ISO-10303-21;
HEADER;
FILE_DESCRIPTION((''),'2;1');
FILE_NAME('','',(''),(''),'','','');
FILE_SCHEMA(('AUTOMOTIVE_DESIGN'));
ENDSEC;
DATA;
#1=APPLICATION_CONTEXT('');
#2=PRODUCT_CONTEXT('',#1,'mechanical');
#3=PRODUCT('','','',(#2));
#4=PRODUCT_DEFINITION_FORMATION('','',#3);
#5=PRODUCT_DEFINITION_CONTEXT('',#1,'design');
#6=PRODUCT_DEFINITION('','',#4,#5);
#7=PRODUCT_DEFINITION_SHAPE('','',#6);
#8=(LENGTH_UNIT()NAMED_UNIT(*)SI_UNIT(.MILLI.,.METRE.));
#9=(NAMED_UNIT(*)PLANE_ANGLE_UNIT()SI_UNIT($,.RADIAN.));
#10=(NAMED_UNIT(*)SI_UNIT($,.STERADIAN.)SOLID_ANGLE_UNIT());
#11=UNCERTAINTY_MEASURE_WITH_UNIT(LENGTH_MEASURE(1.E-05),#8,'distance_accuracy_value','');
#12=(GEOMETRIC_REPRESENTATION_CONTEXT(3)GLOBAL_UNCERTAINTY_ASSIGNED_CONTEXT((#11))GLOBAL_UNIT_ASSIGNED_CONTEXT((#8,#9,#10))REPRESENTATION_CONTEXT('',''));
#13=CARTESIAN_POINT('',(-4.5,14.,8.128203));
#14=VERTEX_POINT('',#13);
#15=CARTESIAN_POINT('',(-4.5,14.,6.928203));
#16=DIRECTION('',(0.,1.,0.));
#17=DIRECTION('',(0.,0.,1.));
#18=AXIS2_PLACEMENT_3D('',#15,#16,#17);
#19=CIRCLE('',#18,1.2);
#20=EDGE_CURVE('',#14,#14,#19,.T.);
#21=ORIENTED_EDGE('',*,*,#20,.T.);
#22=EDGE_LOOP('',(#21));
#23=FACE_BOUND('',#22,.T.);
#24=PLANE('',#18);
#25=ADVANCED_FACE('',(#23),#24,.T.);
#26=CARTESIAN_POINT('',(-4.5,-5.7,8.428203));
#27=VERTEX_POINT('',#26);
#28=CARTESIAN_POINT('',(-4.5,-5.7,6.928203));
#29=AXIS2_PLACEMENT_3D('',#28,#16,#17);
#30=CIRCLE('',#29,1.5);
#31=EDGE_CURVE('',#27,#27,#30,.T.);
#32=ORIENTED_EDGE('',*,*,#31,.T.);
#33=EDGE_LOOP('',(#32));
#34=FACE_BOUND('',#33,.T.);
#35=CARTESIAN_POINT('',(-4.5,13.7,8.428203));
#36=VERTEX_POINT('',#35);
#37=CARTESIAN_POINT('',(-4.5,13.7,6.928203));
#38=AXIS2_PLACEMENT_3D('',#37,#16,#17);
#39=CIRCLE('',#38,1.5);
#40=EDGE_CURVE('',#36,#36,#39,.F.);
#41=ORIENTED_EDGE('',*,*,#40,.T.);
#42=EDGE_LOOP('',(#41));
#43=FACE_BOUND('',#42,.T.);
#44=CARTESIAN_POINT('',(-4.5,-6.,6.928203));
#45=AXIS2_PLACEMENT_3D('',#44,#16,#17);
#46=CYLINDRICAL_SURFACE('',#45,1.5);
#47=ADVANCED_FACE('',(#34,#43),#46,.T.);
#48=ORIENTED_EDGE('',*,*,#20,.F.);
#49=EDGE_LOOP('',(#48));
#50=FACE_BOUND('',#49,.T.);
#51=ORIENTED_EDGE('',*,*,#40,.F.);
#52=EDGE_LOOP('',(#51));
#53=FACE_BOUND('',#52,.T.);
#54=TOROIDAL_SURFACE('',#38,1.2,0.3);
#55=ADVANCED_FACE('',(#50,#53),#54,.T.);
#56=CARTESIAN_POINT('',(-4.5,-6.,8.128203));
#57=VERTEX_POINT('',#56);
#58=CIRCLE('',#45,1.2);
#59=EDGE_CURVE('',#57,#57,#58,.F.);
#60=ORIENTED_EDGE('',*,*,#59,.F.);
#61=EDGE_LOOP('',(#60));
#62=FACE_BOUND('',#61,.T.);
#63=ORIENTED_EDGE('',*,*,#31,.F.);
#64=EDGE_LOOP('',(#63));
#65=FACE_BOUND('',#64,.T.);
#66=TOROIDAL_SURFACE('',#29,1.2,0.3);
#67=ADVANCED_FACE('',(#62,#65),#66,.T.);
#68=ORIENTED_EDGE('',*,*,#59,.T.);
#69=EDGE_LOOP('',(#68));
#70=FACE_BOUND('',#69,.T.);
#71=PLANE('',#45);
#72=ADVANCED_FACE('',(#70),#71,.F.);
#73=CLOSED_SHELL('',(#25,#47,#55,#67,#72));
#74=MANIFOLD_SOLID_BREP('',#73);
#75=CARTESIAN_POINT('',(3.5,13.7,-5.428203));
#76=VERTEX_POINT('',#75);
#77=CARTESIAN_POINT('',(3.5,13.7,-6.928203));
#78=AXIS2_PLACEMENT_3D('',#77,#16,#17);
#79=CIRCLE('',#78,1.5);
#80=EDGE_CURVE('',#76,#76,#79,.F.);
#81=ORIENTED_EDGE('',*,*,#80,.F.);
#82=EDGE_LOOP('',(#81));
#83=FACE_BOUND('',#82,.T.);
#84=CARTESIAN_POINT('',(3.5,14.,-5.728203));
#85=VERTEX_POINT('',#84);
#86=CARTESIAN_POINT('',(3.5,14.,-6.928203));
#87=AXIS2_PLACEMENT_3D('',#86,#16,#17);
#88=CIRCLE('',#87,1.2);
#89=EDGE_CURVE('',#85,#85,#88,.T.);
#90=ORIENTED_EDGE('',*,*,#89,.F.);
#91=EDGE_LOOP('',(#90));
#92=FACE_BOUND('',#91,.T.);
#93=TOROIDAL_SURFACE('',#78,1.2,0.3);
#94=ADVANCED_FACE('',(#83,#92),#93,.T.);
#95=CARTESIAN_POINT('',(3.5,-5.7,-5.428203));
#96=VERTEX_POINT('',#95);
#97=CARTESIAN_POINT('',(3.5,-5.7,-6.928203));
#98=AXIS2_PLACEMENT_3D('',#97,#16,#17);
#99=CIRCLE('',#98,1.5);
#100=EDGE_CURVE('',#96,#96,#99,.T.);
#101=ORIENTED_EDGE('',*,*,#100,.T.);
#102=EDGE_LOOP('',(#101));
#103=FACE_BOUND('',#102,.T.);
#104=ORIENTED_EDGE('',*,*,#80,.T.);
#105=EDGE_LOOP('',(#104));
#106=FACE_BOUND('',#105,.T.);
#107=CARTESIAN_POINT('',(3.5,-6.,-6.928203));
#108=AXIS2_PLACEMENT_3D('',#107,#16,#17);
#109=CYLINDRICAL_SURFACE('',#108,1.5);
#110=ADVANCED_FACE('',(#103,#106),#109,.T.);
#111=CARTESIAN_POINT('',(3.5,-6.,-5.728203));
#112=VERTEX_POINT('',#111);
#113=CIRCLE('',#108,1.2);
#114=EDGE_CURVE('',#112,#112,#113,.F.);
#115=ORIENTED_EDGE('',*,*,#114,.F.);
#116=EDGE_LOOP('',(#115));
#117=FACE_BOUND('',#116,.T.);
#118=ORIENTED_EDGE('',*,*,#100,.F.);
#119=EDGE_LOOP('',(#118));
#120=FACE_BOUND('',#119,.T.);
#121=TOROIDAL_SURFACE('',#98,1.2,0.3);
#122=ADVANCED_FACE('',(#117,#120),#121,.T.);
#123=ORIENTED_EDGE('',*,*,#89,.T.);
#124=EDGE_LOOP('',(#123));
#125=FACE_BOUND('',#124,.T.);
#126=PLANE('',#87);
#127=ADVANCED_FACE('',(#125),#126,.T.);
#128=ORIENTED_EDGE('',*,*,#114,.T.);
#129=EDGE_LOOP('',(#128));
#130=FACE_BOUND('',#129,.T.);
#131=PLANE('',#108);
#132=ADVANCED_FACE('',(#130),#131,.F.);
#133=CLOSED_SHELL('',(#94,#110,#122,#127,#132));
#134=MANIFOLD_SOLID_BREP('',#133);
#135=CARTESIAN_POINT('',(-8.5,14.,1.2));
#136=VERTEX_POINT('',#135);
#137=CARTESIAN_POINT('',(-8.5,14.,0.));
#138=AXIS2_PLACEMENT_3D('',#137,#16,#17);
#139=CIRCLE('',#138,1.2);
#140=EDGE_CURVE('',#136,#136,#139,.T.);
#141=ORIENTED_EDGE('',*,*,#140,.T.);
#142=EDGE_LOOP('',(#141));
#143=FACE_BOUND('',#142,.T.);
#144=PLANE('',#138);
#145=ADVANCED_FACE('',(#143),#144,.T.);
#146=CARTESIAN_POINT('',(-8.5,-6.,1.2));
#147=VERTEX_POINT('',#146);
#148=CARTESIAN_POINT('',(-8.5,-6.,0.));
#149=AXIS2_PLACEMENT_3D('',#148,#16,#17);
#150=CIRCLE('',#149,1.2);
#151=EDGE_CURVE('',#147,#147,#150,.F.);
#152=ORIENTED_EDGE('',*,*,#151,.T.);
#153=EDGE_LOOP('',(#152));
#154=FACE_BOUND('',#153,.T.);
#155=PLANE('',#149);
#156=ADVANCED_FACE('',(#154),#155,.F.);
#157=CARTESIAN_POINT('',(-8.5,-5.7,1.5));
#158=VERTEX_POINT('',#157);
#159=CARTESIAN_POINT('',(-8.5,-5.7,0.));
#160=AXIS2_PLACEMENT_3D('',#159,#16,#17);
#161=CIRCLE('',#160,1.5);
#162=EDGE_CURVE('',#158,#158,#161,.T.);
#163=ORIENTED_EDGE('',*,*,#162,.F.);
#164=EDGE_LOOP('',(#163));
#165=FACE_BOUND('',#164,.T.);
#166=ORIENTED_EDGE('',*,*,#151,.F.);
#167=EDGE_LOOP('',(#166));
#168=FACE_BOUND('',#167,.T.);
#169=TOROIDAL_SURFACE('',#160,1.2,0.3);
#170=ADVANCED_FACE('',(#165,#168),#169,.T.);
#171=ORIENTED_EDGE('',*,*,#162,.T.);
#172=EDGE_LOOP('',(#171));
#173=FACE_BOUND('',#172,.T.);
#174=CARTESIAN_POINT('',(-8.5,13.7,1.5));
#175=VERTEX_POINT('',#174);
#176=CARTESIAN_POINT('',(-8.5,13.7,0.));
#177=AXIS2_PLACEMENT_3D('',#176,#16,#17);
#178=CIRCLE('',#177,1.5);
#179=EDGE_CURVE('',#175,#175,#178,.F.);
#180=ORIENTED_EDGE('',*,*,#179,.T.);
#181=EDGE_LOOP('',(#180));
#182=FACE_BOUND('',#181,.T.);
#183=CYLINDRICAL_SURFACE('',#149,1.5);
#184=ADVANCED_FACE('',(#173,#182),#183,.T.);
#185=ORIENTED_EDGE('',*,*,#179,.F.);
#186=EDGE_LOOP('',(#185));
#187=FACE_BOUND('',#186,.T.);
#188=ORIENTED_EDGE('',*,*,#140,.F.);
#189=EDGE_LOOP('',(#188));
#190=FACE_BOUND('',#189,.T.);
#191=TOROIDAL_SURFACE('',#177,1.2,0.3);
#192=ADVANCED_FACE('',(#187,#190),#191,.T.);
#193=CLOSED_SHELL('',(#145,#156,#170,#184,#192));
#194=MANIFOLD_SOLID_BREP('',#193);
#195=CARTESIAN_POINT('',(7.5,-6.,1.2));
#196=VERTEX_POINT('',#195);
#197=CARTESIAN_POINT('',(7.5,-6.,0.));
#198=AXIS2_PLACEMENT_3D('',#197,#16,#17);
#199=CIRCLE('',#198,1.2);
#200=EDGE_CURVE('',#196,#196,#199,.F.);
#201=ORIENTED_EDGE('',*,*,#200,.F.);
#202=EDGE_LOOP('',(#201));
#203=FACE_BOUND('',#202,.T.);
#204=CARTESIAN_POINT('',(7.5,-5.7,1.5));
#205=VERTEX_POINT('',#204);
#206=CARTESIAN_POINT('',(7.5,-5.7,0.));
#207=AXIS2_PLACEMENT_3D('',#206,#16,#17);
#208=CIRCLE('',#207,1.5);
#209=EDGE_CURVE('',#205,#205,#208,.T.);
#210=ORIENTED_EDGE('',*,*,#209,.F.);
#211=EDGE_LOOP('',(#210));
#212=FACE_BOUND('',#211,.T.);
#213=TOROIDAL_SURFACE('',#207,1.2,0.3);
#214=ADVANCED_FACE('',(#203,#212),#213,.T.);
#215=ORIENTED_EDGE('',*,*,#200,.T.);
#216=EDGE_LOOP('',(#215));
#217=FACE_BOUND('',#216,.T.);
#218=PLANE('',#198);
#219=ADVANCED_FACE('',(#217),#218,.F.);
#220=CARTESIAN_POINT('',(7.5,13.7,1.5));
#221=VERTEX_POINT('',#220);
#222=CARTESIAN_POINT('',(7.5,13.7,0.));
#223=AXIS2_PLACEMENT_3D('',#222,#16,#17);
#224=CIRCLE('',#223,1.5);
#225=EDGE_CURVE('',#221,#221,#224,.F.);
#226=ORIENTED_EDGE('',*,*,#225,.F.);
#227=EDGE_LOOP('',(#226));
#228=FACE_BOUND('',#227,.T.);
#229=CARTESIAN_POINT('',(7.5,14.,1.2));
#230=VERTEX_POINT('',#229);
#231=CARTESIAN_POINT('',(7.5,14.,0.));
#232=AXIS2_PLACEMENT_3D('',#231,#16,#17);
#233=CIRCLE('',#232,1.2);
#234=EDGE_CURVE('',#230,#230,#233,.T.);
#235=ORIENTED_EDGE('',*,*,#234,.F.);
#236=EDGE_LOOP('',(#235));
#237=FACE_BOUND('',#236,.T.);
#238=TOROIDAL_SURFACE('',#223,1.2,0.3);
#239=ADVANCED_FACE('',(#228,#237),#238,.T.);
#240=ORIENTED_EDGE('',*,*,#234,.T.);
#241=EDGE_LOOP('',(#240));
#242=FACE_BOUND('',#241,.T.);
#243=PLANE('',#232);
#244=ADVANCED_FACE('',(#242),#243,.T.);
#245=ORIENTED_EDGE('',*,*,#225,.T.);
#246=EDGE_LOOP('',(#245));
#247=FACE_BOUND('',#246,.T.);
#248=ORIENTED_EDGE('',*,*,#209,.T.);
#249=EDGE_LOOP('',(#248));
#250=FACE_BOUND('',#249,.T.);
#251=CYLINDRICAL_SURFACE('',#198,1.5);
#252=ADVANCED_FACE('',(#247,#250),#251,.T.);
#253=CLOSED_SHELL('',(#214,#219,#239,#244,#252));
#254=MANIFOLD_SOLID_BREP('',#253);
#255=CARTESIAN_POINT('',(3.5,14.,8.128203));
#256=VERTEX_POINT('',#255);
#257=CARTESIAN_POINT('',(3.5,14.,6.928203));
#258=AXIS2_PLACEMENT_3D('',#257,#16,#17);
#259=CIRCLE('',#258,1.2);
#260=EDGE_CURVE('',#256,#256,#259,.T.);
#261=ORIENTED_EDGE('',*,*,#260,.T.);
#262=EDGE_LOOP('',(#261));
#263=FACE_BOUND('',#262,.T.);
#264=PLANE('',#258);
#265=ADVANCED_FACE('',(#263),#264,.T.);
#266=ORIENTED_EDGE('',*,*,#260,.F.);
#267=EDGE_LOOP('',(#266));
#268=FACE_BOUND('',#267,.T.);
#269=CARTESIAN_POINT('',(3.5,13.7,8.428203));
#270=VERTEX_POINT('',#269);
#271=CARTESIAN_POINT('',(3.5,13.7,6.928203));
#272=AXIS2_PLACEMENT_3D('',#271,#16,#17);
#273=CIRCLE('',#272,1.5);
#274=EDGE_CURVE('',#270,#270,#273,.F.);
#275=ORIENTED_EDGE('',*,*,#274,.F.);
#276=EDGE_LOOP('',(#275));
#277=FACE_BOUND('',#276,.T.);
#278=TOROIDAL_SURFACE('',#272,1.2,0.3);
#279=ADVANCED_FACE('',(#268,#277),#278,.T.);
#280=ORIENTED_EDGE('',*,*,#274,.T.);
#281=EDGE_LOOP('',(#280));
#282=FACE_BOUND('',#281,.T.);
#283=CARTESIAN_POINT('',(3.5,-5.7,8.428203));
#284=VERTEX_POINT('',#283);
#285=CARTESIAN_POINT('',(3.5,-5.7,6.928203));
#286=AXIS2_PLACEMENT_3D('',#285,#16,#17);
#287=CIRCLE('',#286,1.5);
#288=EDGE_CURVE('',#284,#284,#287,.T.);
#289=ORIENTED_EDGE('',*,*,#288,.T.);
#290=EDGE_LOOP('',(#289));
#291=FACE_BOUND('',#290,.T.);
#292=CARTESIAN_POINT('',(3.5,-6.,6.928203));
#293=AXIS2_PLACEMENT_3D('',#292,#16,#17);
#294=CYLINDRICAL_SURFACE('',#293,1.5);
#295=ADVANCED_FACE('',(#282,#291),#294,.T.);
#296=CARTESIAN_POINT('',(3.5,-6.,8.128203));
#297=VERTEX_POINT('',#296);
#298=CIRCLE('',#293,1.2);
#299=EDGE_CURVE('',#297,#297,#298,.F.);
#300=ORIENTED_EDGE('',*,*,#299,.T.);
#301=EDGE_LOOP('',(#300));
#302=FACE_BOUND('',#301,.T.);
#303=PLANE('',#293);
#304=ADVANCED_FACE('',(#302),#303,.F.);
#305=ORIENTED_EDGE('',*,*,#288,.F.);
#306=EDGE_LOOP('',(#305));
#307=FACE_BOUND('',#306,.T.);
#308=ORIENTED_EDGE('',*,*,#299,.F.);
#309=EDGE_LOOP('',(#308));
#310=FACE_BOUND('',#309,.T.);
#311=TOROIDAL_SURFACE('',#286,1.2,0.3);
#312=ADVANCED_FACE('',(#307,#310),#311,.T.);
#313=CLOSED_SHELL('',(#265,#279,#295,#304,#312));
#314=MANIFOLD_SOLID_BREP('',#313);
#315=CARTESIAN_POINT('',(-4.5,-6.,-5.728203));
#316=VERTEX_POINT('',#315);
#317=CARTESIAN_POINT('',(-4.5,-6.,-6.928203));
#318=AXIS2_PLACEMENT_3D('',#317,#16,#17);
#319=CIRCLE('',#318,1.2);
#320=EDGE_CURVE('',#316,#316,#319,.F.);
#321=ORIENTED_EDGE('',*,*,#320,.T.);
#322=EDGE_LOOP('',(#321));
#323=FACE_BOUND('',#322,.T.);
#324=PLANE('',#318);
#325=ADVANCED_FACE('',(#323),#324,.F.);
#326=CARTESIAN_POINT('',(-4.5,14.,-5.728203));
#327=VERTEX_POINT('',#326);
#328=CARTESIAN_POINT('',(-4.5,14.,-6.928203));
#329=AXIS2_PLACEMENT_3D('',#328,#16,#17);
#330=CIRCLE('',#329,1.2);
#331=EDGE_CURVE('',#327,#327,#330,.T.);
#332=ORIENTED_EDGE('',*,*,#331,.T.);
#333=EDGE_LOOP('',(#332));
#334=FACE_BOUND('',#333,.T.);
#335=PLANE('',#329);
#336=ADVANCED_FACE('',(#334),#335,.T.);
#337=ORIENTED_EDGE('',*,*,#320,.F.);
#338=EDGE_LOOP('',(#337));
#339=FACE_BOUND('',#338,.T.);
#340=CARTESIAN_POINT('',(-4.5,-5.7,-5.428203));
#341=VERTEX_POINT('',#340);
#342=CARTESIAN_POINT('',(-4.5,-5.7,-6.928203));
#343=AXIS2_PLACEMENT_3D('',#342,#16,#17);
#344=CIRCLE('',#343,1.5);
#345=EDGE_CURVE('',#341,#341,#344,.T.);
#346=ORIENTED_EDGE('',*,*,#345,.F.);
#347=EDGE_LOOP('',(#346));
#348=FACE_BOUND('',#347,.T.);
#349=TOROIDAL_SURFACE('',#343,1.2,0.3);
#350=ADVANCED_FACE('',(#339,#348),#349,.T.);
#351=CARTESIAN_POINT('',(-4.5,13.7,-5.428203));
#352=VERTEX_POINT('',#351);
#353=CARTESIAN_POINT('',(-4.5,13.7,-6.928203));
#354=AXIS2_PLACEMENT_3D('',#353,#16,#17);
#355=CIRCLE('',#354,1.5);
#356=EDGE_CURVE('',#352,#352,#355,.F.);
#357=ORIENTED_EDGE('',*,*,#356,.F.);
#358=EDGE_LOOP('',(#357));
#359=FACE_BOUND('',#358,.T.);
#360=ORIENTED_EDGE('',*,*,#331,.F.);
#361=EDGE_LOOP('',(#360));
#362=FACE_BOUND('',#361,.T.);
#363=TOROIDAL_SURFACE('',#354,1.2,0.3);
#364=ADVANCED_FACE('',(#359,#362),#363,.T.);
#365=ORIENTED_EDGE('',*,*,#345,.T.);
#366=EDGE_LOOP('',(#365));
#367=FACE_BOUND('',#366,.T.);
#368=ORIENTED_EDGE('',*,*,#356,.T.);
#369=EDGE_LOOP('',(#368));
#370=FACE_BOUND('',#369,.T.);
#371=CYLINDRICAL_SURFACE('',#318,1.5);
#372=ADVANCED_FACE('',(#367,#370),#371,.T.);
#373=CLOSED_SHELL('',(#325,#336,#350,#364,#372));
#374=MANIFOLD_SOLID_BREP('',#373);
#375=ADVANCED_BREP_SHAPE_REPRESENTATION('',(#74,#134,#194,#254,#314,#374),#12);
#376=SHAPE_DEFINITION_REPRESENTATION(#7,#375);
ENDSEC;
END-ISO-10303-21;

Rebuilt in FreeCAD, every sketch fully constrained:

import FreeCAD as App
import Part
import Sketcher
from FreeCAD import Vector


def edges_at(feature, points):
    """Names of the edges that pass closest to the given points."""
    edges = feature.Shape.Edges
    near = lambda p: min(range(len(edges)), key=lambda i: edges[i].distToShape(Part.Vertex(*p))[0])
    return sorted({f"Edge{near(p) + 1}" for p in points})

doc = App.newDocument("Part")
params = doc.addObject("Spreadsheet::Sheet", "Params")
for row, (alias, value) in enumerate([
    ("sketch1_diameter", "3 mm"),
    ("pad1_length", "14 mm"),
    ("pad1_length2", "6 mm"),
    ("fillet_radius", "0.3 mm"),
    ("fillet2_radius", "0.3 mm"),
    ("sketch2_diameter", "3 mm"),
    ("pad2_length", "14 mm"),
    ("pad2_length2", "6 mm"),
    ("fillet3_radius", "0.3 mm"),
    ("fillet4_radius", "0.3 mm"),
    ("sketch3_diameter", "3 mm"),
    ("pad3_length", "14 mm"),
    ("pad3_length2", "6 mm"),
    ("fillet5_radius", "0.3 mm"),
    ("fillet6_radius", "0.3 mm"),
    ("sketch4_diameter", "3 mm"),
    ("pad4_length", "14 mm"),
    ("pad4_length2", "6 mm"),
    ("fillet7_radius", "0.3 mm"),
    ("fillet8_radius", "0.3 mm"),
    ("sketch5_diameter", "3 mm"),
    ("pad5_length", "14 mm"),
    ("pad5_length2", "6 mm"),
    ("fillet9_radius", "0.3 mm"),
    ("fillet10_radius", "0.3 mm"),
    ("sketch6_diameter", "3 mm"),
    ("pad6_length", "14 mm"),
    ("pad6_length2", "6 mm"),
    ("fillet11_radius", "0.3 mm"),
    ("fillet12_radius", "0.3 mm"),
], start=1):
    params.set(f"A{row}", alias)
    params.set(f"B{row}", "=" + value)
    params.setAlias(f"B{row}", alias)

body = doc.addObject("PartDesign::Body", "Body")

# Sketch on XZ plane
sketch1 = doc.addObject("Sketcher::SketchObject", "Sketch")
body.addObject(sketch1)
sketch1.AttachmentSupport = (doc.XZ_Plane, [""])
sketch1.MapMode = "FlatFace"
sketch1.addGeometry(Part.Circle(Vector(7.5, 0, 0), Vector(0, 0, 1), 1.5), False)
sketch1.addConstraint([
    Sketcher.Constraint("PointOnObject", 0, 3, -1),
    Sketcher.Constraint("Diameter", 0, 3.0),
    Sketcher.Constraint("DistanceX", -1, 1, 0, 3, 7.5),
])
sketch1.setExpression("Constraints[1]", "Params.sketch1_diameter")
pad1 = doc.addObject("PartDesign::Pad", "Pad")
body.addObject(pad1)
pad1.Profile = sketch1
pad1.Type = "TwoLengths"
pad1.setExpression("Length", "Params.pad1_length")
pad1.setExpression("Length2", "Params.pad1_length2")
pad1.Reversed = True
doc.recompute()

fillet = doc.addObject("PartDesign::Fillet", "Fillet")
body.addObject(fillet)
fillet.Base = (pad1, edges_at(pad1, [(7.5, 14, -1.5)]))
fillet.setExpression("Radius", "Params.fillet_radius")
doc.recompute()

fillet2 = doc.addObject("PartDesign::Fillet", "Fillet001")
body.addObject(fillet2)
fillet2.Base = (fillet, edges_at(fillet, [(7.5, -6, -1.5)]))
fillet2.setExpression("Radius", "Params.fillet2_radius")
body2 = doc.addObject("PartDesign::Body", "Body001")

# Sketch on XZ plane
sketch2 = doc.addObject("Sketcher::SketchObject", "Sketch001")
body2.addObject(sketch2)
sketch2.AttachmentSupport = (doc.getObject("XZ_Plane001"), [""])
sketch2.MapMode = "FlatFace"
sketch2.addGeometry(Part.Circle(Vector(3.5, 6.9, 0), Vector(0, 0, 1), 1.5), False)
sketch2.addConstraint([
    Sketcher.Constraint("Diameter", 0, 3.0),
    Sketcher.Constraint("DistanceX", -1, 1, 0, 3, 3.5),
    Sketcher.Constraint("DistanceY", -1, 1, 0, 3, 6.928203),
])
sketch2.setExpression("Constraints[0]", "Params.sketch2_diameter")
pad2 = doc.addObject("PartDesign::Pad", "Pad001")
body2.addObject(pad2)
pad2.Profile = sketch2
pad2.Type = "TwoLengths"
pad2.setExpression("Length", "Params.pad2_length")
pad2.setExpression("Length2", "Params.pad2_length2")
pad2.Reversed = True
doc.recompute()

fillet3 = doc.addObject("PartDesign::Fillet", "Fillet002")
body2.addObject(fillet3)
fillet3.Base = (pad2, edges_at(pad2, [(3.5, 14, 5.428)]))
fillet3.setExpression("Radius", "Params.fillet3_radius")
doc.recompute()

fillet4 = doc.addObject("PartDesign::Fillet", "Fillet003")
body2.addObject(fillet4)
fillet4.Base = (fillet3, edges_at(fillet3, [(3.5, -6, 5.428)]))
fillet4.setExpression("Radius", "Params.fillet4_radius")
body3 = doc.addObject("PartDesign::Body", "Body002")

# Sketch on XZ plane
sketch3 = doc.addObject("Sketcher::SketchObject", "Sketch002")
body3.addObject(sketch3)
sketch3.AttachmentSupport = (doc.getObject("XZ_Plane002"), [""])
sketch3.MapMode = "FlatFace"
sketch3.addGeometry(Part.Circle(Vector(-4.5, 6.9, 0), Vector(0, 0, 1), 1.5), False)
sketch3.addConstraint([
    Sketcher.Constraint("Diameter", 0, 3.0),
    Sketcher.Constraint("DistanceX", 0, 3, -1, 1, 4.5),
    Sketcher.Constraint("DistanceY", -1, 1, 0, 3, 6.928203),
])
sketch3.setExpression("Constraints[0]", "Params.sketch3_diameter")
pad3 = doc.addObject("PartDesign::Pad", "Pad002")
body3.addObject(pad3)
pad3.Profile = sketch3
pad3.Type = "TwoLengths"
pad3.setExpression("Length", "Params.pad3_length")
pad3.setExpression("Length2", "Params.pad3_length2")
pad3.Reversed = True
doc.recompute()

fillet5 = doc.addObject("PartDesign::Fillet", "Fillet004")
body3.addObject(fillet5)
fillet5.Base = (pad3, edges_at(pad3, [(-4.5, 14, 5.428)]))
fillet5.setExpression("Radius", "Params.fillet5_radius")
doc.recompute()

fillet6 = doc.addObject("PartDesign::Fillet", "Fillet005")
body3.addObject(fillet6)
fillet6.Base = (fillet5, edges_at(fillet5, [(-4.5, -6, 5.428)]))
fillet6.setExpression("Radius", "Params.fillet6_radius")
body4 = doc.addObject("PartDesign::Body", "Body003")

# Sketch on XZ plane
sketch4 = doc.addObject("Sketcher::SketchObject", "Sketch003")
body4.addObject(sketch4)
sketch4.AttachmentSupport = (doc.getObject("XZ_Plane003"), [""])
sketch4.MapMode = "FlatFace"
sketch4.addGeometry(Part.Circle(Vector(-8.5, 0, 0), Vector(0, 0, 1), 1.5), False)
sketch4.addConstraint([
    Sketcher.Constraint("PointOnObject", 0, 3, -1),
    Sketcher.Constraint("Diameter", 0, 3.0),
    Sketcher.Constraint("DistanceX", 0, 3, -1, 1, 8.5),
])
sketch4.setExpression("Constraints[1]", "Params.sketch4_diameter")
pad4 = doc.addObject("PartDesign::Pad", "Pad003")
body4.addObject(pad4)
pad4.Profile = sketch4
pad4.Type = "TwoLengths"
pad4.setExpression("Length", "Params.pad4_length")
pad4.setExpression("Length2", "Params.pad4_length2")
pad4.Reversed = True
doc.recompute()

fillet7 = doc.addObject("PartDesign::Fillet", "Fillet006")
body4.addObject(fillet7)
fillet7.Base = (pad4, edges_at(pad4, [(-8.5, 14, -1.5)]))
fillet7.setExpression("Radius", "Params.fillet7_radius")
doc.recompute()

fillet8 = doc.addObject("PartDesign::Fillet", "Fillet007")
body4.addObject(fillet8)
fillet8.Base = (fillet7, edges_at(fillet7, [(-8.5, -6, -1.5)]))
fillet8.setExpression("Radius", "Params.fillet8_radius")
body5 = doc.addObject("PartDesign::Body", "Body004")

# Sketch on XZ plane
sketch5 = doc.addObject("Sketcher::SketchObject", "Sketch004")
body5.addObject(sketch5)
sketch5.AttachmentSupport = (doc.getObject("XZ_Plane004"), [""])
sketch5.MapMode = "FlatFace"
sketch5.addGeometry(Part.Circle(Vector(-4.5, -6.9, 0), Vector(0, 0, 1), 1.5), False)
sketch5.addConstraint([
    Sketcher.Constraint("Diameter", 0, 3.0),
    Sketcher.Constraint("DistanceX", 0, 3, -1, 1, 4.5),
    Sketcher.Constraint("DistanceY", 0, 3, -1, 1, 6.928203),
])
sketch5.setExpression("Constraints[0]", "Params.sketch5_diameter")
pad5 = doc.addObject("PartDesign::Pad", "Pad004")
body5.addObject(pad5)
pad5.Profile = sketch5
pad5.Type = "TwoLengths"
pad5.setExpression("Length", "Params.pad5_length")
pad5.setExpression("Length2", "Params.pad5_length2")
pad5.Reversed = True
doc.recompute()

fillet9 = doc.addObject("PartDesign::Fillet", "Fillet008")
body5.addObject(fillet9)
fillet9.Base = (pad5, edges_at(pad5, [(-4.5, 14, -8.428)]))
fillet9.setExpression("Radius", "Params.fillet9_radius")
doc.recompute()

fillet10 = doc.addObject("PartDesign::Fillet", "Fillet009")
body5.addObject(fillet10)
fillet10.Base = (fillet9, edges_at(fillet9, [(-4.5, -6, -8.428)]))
fillet10.setExpression("Radius", "Params.fillet10_radius")
body6 = doc.addObject("PartDesign::Body", "Body005")

# Sketch on XZ plane
sketch6 = doc.addObject("Sketcher::SketchObject", "Sketch005")
body6.addObject(sketch6)
sketch6.AttachmentSupport = (doc.getObject("XZ_Plane005"), [""])
sketch6.MapMode = "FlatFace"
sketch6.addGeometry(Part.Circle(Vector(3.5, -6.9, 0), Vector(0, 0, 1), 1.5), False)
sketch6.addConstraint([
    Sketcher.Constraint("Diameter", 0, 3.0),
    Sketcher.Constraint("DistanceX", -1, 1, 0, 3, 3.5),
    Sketcher.Constraint("DistanceY", 0, 3, -1, 1, 6.928203),
])
sketch6.setExpression("Constraints[0]", "Params.sketch6_diameter")
pad6 = doc.addObject("PartDesign::Pad", "Pad005")
body6.addObject(pad6)
pad6.Profile = sketch6
pad6.Type = "TwoLengths"
pad6.setExpression("Length", "Params.pad6_length")
pad6.setExpression("Length2", "Params.pad6_length2")
pad6.Reversed = True
doc.recompute()

fillet11 = doc.addObject("PartDesign::Fillet", "Fillet010")
body6.addObject(fillet11)
fillet11.Base = (pad6, edges_at(pad6, [(3.5, 14, -8.428)]))
fillet11.setExpression("Radius", "Params.fillet11_radius")
doc.recompute()

fillet12 = doc.addObject("PartDesign::Fillet", "Fillet011")
body6.addObject(fillet12)
fillet12.Base = (fillet11, edges_at(fillet11, [(3.5, -6, -8.428)]))
fillet12.setExpression("Radius", "Params.fillet12_radius")

doc.recompute()
